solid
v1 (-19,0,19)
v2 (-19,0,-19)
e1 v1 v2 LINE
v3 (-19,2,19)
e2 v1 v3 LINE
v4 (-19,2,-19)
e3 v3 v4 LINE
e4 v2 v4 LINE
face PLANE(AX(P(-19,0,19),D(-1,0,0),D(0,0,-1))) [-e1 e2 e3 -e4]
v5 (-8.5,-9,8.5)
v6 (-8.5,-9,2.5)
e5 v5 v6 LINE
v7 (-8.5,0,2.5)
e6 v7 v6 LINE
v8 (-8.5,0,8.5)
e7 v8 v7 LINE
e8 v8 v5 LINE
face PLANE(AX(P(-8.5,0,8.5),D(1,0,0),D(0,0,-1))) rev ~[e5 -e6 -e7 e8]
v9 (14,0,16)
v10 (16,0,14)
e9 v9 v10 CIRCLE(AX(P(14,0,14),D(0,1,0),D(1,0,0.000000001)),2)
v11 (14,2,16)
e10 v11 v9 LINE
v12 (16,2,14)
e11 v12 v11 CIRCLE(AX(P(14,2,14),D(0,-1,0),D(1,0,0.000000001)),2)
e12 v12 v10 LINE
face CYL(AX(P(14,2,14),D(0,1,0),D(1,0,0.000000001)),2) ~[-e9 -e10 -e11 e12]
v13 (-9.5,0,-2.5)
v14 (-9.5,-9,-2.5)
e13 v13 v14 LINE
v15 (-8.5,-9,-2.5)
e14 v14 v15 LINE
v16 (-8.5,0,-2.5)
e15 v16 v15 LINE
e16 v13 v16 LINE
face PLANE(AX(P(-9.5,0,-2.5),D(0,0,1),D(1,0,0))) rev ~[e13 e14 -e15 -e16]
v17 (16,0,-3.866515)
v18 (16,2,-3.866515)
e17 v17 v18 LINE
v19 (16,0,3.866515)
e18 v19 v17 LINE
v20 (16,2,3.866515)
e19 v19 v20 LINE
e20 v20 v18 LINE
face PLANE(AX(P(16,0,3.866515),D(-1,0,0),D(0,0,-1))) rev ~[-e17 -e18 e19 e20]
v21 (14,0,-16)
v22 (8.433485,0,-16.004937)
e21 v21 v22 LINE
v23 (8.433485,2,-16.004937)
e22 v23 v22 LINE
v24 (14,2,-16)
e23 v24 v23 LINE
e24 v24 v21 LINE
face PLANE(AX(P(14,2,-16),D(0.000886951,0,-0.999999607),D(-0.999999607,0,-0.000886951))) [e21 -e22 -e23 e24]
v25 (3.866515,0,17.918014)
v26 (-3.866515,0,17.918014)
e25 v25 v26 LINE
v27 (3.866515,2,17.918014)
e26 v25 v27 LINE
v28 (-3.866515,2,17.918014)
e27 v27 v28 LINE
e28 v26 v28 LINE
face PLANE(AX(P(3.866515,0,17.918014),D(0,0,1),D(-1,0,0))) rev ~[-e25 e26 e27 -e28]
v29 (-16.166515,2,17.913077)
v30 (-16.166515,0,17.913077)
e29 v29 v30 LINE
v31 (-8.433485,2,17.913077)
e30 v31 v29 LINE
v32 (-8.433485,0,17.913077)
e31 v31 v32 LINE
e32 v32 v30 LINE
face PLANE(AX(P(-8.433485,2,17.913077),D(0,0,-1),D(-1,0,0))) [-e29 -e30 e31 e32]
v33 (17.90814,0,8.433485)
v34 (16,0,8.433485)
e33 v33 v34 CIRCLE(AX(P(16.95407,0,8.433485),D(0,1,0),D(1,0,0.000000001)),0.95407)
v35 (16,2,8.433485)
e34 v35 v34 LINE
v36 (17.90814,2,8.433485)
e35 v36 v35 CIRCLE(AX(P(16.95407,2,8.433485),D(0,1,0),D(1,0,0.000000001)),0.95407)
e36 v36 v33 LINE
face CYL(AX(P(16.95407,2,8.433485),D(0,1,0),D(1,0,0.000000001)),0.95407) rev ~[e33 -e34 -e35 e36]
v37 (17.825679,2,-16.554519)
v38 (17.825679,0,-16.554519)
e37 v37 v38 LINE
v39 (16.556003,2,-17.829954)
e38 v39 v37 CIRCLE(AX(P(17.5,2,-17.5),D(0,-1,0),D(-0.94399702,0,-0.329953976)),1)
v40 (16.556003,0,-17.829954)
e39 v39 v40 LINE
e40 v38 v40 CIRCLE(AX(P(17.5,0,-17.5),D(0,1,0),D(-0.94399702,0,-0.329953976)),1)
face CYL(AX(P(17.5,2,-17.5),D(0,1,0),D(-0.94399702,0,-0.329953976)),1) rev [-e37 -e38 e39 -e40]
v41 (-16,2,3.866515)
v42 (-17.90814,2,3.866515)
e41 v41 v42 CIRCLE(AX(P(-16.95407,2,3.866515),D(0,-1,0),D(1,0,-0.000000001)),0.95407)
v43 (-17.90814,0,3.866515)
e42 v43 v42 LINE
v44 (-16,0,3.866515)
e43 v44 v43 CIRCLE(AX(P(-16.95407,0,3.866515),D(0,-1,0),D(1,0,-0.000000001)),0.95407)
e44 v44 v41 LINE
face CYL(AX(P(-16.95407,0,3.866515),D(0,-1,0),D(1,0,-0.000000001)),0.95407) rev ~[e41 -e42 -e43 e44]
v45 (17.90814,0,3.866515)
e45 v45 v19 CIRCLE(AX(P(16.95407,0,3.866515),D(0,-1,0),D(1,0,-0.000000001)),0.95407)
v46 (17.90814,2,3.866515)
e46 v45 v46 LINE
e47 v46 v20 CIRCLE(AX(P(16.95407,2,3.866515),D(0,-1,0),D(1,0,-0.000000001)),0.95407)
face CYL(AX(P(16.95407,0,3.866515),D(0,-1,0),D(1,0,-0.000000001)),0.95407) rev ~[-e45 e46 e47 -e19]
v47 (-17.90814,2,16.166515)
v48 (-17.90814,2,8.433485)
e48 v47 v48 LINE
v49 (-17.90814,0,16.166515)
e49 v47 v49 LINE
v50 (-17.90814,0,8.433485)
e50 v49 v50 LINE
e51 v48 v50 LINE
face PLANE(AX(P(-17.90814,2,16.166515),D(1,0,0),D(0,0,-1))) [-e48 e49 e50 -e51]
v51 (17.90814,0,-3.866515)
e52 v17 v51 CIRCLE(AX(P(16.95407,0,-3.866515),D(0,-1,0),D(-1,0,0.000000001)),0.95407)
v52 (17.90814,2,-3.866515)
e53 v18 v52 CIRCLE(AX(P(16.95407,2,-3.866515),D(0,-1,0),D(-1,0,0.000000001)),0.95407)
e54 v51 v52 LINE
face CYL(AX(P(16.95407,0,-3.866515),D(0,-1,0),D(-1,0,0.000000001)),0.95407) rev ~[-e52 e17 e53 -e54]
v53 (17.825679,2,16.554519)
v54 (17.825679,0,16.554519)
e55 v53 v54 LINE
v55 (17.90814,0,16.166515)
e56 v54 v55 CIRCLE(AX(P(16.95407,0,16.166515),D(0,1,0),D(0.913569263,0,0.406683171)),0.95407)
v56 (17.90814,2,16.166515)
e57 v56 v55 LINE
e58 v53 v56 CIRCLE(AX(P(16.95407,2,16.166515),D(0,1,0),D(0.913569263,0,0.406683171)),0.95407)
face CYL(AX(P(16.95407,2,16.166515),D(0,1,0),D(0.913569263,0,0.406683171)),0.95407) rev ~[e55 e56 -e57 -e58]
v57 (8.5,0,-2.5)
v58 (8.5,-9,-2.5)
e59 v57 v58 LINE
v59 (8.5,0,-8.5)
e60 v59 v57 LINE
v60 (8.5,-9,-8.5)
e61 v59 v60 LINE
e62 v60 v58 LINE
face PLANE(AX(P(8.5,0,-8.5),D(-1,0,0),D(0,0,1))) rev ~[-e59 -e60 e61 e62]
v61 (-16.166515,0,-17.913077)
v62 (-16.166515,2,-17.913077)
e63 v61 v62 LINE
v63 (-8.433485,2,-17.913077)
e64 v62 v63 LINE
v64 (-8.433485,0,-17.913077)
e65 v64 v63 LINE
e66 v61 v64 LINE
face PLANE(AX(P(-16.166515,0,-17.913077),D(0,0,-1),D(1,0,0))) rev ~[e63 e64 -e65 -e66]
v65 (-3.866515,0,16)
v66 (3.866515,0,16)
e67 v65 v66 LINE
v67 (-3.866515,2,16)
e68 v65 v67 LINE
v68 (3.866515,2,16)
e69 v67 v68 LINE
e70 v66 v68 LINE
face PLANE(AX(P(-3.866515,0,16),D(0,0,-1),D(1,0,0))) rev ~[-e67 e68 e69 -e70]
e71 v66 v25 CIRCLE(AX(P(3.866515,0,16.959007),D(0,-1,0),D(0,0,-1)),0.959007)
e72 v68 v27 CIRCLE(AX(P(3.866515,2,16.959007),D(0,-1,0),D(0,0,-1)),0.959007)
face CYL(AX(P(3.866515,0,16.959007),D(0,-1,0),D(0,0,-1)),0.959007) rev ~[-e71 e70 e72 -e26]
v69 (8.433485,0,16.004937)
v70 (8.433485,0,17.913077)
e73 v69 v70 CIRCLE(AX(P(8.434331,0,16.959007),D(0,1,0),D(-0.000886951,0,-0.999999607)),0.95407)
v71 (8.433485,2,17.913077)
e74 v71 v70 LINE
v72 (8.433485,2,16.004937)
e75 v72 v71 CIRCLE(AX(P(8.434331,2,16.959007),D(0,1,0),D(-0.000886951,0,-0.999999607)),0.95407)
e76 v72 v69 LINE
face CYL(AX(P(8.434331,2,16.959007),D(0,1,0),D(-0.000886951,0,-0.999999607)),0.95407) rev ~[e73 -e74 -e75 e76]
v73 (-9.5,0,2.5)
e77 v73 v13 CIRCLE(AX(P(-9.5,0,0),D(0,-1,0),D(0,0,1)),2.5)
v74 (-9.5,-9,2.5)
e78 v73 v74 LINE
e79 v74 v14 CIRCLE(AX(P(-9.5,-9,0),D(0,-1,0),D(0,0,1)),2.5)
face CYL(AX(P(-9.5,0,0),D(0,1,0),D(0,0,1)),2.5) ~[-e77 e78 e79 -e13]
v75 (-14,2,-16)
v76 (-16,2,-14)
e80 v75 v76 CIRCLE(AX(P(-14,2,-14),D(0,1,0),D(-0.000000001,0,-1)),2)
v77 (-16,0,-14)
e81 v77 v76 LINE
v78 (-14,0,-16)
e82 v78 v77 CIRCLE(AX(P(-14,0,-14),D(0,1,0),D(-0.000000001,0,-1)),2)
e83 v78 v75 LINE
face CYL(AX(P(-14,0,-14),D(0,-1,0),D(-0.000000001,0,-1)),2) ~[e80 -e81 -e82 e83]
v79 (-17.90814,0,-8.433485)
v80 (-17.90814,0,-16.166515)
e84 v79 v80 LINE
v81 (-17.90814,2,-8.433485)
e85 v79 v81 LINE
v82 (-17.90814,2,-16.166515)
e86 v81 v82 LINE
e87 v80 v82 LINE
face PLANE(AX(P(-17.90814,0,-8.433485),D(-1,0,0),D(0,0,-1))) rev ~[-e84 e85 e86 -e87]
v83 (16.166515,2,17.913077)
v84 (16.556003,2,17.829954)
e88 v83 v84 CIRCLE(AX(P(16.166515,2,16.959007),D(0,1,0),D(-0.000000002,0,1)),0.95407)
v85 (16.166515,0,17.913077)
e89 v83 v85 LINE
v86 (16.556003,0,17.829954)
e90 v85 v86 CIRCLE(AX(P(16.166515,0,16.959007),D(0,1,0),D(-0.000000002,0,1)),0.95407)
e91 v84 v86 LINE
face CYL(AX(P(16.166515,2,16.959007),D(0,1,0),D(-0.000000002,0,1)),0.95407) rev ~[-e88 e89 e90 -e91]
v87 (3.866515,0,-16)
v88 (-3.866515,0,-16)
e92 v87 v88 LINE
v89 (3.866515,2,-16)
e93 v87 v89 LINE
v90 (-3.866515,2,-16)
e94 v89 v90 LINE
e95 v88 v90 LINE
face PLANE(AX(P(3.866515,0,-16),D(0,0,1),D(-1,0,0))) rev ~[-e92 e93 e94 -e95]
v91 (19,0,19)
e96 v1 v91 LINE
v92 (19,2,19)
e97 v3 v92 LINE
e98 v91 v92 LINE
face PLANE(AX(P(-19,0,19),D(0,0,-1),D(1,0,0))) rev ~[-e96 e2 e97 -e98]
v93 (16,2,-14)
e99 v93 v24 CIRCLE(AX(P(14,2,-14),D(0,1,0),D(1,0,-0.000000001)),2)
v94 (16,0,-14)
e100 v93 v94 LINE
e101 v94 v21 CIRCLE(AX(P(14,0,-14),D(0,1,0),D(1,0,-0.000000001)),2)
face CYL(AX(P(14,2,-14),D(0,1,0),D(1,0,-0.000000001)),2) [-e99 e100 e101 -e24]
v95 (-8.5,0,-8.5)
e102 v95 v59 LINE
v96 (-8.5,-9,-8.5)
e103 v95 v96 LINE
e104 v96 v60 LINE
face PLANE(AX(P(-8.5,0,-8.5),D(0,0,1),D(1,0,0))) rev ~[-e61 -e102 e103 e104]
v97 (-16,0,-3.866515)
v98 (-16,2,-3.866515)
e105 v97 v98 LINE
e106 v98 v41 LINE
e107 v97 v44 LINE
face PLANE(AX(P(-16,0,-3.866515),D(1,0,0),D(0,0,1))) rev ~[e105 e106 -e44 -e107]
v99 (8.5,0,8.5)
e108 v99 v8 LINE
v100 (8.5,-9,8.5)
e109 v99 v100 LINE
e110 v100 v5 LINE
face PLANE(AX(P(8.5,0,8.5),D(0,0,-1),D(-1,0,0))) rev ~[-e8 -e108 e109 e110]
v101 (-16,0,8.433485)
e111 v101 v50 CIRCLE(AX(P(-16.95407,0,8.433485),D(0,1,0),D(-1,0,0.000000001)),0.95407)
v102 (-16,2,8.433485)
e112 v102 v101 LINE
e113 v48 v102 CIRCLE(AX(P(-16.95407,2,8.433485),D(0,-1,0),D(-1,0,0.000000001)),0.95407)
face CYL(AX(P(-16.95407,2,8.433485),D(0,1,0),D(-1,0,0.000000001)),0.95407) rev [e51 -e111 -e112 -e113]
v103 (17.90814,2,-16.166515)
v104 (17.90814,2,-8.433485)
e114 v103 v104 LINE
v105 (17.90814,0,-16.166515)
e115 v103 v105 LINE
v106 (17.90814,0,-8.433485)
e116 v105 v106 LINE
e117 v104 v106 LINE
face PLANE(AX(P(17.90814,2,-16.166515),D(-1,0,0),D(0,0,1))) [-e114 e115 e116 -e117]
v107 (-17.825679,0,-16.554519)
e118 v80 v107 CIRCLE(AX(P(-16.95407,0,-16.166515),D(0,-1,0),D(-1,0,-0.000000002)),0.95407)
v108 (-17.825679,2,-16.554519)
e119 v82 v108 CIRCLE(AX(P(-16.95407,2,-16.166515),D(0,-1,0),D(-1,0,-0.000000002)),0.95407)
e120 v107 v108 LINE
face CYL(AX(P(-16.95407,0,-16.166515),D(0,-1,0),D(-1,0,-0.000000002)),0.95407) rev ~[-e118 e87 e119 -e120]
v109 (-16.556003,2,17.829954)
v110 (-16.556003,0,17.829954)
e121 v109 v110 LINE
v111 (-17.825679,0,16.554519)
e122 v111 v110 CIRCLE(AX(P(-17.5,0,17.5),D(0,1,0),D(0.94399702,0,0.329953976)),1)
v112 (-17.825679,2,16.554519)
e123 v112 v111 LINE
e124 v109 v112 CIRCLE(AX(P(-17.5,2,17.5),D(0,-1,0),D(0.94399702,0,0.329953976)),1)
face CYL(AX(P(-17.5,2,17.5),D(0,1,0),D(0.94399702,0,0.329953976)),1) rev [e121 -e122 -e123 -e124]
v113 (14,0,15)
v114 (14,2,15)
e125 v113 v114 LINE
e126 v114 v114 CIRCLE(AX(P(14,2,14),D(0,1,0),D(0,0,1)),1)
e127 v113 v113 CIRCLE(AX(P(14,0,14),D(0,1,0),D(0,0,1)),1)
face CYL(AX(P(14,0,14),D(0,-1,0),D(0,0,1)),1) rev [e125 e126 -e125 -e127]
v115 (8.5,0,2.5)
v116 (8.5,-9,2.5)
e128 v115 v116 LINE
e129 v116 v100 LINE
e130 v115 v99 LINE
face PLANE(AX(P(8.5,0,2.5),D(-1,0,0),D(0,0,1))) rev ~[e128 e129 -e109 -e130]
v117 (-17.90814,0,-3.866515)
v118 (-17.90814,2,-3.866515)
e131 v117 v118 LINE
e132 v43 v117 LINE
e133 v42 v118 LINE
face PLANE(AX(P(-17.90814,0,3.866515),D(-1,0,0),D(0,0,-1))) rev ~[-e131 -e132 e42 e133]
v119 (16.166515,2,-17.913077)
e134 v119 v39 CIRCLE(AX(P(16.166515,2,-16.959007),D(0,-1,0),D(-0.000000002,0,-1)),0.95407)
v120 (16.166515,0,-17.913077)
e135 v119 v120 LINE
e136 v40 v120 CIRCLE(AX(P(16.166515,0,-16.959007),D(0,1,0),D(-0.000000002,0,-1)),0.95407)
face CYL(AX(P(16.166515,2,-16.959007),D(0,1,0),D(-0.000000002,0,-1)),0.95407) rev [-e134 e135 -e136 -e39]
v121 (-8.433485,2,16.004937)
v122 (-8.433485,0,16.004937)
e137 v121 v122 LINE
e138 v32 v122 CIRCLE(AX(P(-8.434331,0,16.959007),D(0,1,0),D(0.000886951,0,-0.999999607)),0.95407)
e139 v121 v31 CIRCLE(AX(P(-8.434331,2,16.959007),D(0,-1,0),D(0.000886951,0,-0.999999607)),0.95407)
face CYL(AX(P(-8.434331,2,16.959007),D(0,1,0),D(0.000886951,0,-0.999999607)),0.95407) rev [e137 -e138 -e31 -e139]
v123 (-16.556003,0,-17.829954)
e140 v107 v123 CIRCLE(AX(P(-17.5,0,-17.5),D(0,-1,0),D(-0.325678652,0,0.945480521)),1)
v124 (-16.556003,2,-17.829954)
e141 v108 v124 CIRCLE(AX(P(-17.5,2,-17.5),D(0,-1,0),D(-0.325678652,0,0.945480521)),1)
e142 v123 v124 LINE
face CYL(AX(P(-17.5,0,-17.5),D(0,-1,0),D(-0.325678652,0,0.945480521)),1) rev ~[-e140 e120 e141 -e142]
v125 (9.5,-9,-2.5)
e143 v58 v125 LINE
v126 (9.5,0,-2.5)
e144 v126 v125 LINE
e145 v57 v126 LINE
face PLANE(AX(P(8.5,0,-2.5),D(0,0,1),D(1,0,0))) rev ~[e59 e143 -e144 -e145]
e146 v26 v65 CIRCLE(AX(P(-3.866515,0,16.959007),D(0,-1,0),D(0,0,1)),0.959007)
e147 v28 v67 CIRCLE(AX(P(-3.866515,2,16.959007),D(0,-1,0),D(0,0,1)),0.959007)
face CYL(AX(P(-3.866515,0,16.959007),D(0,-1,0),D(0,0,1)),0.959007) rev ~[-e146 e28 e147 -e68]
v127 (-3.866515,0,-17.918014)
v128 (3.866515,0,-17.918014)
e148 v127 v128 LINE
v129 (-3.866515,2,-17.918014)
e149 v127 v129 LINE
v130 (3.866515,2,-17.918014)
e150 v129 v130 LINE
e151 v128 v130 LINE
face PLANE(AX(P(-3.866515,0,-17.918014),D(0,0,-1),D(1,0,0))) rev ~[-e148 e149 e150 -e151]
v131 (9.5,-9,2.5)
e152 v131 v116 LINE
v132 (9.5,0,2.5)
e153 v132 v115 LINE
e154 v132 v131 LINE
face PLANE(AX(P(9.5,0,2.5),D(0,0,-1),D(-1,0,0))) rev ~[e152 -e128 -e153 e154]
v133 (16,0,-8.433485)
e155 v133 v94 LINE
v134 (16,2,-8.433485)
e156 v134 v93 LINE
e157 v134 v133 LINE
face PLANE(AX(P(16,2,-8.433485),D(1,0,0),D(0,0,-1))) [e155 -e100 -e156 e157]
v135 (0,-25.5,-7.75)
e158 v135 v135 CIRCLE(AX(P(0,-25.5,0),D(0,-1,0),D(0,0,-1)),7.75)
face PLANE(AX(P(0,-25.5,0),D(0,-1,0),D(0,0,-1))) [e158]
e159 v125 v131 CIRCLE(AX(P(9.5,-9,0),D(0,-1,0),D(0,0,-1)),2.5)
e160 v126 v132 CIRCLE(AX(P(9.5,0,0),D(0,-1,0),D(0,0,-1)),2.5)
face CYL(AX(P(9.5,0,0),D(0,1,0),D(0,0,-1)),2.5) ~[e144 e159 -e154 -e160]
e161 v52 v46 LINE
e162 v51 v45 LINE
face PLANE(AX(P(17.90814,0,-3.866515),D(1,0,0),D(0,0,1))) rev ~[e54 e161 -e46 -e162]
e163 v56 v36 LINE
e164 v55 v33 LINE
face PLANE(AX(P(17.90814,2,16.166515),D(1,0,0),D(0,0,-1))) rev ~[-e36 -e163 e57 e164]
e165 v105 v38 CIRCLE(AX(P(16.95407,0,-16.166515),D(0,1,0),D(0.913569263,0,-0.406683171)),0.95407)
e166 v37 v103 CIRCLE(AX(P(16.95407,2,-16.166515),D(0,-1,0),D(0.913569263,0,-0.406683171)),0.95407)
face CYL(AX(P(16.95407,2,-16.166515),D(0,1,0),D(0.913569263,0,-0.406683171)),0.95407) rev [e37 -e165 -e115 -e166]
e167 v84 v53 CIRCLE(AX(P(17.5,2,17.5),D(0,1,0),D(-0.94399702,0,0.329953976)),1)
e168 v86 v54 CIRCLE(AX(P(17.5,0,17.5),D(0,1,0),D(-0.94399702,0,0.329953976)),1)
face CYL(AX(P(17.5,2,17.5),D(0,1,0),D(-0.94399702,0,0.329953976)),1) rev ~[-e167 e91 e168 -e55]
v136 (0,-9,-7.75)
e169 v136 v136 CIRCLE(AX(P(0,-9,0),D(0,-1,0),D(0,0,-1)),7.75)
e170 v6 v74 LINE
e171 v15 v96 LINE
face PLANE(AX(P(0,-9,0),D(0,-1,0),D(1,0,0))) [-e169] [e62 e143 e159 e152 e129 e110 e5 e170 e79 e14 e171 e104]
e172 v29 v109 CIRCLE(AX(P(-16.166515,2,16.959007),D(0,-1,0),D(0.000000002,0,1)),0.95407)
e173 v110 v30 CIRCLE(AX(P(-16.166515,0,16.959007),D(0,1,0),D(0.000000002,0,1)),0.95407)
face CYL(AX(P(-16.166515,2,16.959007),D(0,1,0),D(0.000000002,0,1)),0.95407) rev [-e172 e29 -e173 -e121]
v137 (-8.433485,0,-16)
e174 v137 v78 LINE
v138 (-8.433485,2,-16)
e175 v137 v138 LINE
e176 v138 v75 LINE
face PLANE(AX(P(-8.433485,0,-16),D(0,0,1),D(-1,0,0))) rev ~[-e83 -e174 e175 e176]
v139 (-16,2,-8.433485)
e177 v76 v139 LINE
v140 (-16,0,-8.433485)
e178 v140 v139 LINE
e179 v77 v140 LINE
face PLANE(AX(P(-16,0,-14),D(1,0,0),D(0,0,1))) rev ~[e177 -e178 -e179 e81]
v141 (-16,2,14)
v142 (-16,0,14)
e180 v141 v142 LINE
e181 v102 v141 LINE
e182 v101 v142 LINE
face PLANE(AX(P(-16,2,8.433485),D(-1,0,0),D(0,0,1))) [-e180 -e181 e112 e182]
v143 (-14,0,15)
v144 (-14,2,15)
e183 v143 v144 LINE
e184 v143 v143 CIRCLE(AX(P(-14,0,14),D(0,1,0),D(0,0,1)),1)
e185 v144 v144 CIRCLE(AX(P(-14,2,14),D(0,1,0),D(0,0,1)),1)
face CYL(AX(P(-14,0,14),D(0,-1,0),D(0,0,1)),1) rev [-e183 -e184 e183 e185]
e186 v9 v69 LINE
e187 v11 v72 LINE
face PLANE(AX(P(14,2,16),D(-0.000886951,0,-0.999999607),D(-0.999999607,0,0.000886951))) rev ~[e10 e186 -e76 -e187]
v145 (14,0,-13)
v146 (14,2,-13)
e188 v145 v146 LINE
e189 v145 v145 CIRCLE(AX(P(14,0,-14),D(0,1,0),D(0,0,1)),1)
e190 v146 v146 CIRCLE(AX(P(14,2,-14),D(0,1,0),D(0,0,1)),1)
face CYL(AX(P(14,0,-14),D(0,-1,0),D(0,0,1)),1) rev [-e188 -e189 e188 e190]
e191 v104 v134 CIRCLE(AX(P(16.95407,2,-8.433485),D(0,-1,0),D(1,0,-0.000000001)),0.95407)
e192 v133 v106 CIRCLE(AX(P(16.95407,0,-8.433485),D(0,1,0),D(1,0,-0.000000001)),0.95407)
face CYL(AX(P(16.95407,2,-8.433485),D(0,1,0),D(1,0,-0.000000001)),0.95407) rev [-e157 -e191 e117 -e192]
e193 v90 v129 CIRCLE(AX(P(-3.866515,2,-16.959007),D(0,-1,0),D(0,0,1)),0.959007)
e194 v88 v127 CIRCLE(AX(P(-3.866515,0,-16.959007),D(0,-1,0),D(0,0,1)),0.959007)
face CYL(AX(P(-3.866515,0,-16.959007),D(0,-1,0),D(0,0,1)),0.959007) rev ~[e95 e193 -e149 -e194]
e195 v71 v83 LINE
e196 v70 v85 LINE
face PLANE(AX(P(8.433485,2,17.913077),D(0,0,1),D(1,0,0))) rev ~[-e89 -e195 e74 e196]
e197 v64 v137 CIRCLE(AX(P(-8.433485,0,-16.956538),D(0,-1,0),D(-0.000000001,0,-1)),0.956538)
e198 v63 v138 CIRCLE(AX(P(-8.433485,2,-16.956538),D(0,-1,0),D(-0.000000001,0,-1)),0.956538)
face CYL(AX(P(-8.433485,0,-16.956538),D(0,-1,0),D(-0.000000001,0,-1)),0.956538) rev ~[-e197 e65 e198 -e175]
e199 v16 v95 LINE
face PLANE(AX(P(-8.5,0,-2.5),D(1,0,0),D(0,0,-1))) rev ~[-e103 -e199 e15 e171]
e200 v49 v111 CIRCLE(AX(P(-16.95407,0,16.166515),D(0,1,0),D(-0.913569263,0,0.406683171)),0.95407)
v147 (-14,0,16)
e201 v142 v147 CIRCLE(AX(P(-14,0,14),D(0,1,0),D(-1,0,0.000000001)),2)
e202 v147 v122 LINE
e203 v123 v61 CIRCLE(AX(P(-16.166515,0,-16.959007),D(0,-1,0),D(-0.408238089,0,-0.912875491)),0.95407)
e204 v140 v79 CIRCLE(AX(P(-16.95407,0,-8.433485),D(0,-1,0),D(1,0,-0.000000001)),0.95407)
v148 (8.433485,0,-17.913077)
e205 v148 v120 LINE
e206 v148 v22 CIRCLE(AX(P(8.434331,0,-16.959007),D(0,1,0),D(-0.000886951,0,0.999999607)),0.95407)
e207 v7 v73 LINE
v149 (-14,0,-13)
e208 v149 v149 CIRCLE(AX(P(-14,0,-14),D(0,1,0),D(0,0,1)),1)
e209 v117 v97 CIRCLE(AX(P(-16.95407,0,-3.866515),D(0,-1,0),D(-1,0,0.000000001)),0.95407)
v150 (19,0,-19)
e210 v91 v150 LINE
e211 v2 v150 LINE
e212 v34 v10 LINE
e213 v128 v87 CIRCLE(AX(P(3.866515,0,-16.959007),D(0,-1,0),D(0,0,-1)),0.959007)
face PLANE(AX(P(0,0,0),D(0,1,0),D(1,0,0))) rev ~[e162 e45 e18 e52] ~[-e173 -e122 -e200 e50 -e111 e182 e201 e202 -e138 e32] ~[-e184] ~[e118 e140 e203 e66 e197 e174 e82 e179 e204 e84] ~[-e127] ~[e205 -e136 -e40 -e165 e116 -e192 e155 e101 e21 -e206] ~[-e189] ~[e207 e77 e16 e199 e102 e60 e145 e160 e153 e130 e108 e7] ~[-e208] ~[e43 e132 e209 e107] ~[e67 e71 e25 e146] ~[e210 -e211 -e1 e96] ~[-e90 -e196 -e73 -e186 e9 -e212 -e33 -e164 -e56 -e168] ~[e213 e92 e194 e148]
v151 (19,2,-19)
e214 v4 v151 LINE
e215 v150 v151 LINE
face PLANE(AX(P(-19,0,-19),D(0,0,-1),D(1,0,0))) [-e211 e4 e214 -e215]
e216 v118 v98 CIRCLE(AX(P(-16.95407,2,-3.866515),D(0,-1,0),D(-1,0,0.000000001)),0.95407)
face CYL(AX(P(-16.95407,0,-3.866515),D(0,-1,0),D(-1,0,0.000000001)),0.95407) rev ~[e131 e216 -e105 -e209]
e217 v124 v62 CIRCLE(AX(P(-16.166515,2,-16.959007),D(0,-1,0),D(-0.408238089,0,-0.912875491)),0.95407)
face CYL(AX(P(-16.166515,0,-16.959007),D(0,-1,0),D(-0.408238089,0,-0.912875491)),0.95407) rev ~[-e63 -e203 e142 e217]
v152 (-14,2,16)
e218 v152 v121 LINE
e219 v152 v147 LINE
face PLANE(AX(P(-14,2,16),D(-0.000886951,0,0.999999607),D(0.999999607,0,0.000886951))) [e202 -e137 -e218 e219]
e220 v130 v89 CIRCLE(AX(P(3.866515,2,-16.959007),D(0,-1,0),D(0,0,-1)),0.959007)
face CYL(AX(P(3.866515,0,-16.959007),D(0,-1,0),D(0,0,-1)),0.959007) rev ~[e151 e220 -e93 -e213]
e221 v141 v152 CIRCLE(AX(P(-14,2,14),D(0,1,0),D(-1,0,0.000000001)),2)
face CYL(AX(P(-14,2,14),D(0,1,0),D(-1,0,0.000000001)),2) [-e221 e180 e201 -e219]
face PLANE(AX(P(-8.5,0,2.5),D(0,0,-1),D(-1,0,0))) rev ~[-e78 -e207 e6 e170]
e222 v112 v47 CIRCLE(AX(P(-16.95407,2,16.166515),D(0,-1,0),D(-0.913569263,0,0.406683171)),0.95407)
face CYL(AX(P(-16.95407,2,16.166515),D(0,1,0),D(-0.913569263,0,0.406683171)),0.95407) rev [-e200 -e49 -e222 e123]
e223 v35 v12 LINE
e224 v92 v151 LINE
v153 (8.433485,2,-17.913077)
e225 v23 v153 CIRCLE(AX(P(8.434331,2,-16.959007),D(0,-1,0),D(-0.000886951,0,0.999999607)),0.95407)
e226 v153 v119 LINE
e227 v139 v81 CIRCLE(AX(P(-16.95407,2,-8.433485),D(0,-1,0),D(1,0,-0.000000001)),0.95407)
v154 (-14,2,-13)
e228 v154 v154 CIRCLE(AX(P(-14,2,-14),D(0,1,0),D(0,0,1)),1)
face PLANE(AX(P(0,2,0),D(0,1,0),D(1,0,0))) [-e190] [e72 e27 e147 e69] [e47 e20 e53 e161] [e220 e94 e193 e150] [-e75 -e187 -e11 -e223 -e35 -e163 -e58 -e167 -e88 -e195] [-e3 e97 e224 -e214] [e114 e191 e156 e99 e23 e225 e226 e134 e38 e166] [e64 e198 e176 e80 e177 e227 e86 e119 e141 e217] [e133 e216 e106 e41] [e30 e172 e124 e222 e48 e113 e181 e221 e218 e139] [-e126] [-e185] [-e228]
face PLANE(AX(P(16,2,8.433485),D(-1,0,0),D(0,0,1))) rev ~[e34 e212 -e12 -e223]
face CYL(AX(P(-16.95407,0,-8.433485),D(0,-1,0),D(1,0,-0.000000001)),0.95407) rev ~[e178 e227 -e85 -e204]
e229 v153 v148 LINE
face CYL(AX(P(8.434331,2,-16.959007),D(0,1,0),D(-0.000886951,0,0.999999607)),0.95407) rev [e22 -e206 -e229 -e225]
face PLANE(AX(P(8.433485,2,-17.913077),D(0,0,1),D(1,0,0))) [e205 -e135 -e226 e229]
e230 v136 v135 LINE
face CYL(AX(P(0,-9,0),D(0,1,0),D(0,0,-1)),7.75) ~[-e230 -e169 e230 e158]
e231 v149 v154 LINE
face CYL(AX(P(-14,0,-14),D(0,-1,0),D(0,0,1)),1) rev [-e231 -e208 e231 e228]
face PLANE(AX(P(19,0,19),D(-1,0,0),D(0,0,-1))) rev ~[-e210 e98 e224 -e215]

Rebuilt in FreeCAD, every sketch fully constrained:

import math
import FreeCAD as App
import Part
import Sketcher


def add_polygon(sketch, points):
    """Adds a closed chain of lines whose ends are joined by coincident constraints."""
    first, n = sketch.GeometryCount, len(points)
    for a, b in zip(points, points[1:] + points[:1]):
        sketch.addGeometry(Part.LineSegment(App.Vector(*a, 0), App.Vector(*b, 0)), False)
    for i in range(n):
        sketch.addConstraint(Sketcher.Constraint("Coincident", first + i, 2, first + (i + 1) % n, 1))

doc = App.newDocument("Part")
body = doc.addObject("PartDesign::Body", "Body")

# Sketch on XZ plane
sketch1 = body.newObject("Sketcher::SketchObject", "Sketch")
sketch1.AttachmentSupport = (doc.getObject("XZ_Plane"), [""])
sketch1.MapMode = "FlatFace"
add_polygon(sketch1, [(-19, -19), (-19, 19), (19, 19), (19, -19)])  # lines 0-3
sketch1.addGeometry(Part.Circle(App.Vector(-14, 14, 0), App.Vector(0, 0, 1), 1), False)  # 4
sketch1.addGeometry(Part.LineSegment(App.Vector(-17.91, 3.87, 0), App.Vector(-17.91, -3.87, 0)), False)  # 5
sketch1.addGeometry(Part.ArcOfCircle(Part.Circle(App.Vector(-16.95, -3.87, 0), App.Vector(0, 0, 1), 0.95), math.radians(180), math.radians(360)), False)  # 6
sketch1.addGeometry(Part.LineSegment(App.Vector(-16, -3.87, 0), App.Vector(-16, 3.87, 0)), False)  # 7
sketch1.addGeometry(Part.ArcOfCircle(Part.Circle(App.Vector(-16.95, 3.87, 0), App.Vector(0, 0, 1), 0.95), math.radians(0), math.radians(180)), False)  # 8
sketch1.addGeometry(Part.LineSegment(App.Vector(3.87, 17.92, 0), App.Vector(-3.87, 17.92, 0)), False)  # 9
sketch1.addGeometry(Part.ArcOfCircle(Part.Circle(App.Vector(-3.87, 16.96, 0), App.Vector(0, 0, 1), 0.96), math.radians(90), math.radians(270)), False)  # 10
sketch1.addGeometry(Part.LineSegment(App.Vector(-3.87, 16, 0), App.Vector(3.87, 16, 0)), False)  # 11
sketch1.addGeometry(Part.ArcOfCircle(Part.Circle(App.Vector(3.87, 16.96, 0), App.Vector(0, 0, 1), 0.96), math.radians(-90), math.radians(90)), False)  # 12
sketch1.addGeometry(Part.Circle(App.Vector(14, 14, 0), App.Vector(0, 0, 1), 1), False)  # 13
sketch1.addGeometry(Part.LineSegment(App.Vector(17.91, -3.87, 0), App.Vector(17.91, 3.87, 0)), False)  # 14
sketch1.addGeometry(Part.ArcOfCircle(Part.Circle(App.Vector(16.95, 3.87, 0), App.Vector(0, 0, 1), 0.95), math.radians(0), math.radians(180)), False)  # 15
sketch1.addGeometry(Part.LineSegment(App.Vector(16, 3.87, 0), App.Vector(16, -3.87, 0)), False)  # 16
sketch1.addGeometry(Part.ArcOfCircle(Part.Circle(App.Vector(16.95, -3.87, 0), App.Vector(0, 0, 1), 0.95), math.radians(180), math.radians(360)), False)  # 17
sketch1.addGeometry(Part.LineSegment(App.Vector(-16.17, -17.91, 0), App.Vector(-8.43, -17.91, 0)), False)  # 18
sketch1.addGeometry(Part.ArcOfCircle(Part.Circle(App.Vector(-8.43, -16.96, 0), App.Vector(0, 0, 1), 0.96), math.radians(-90), math.radians(90)), False)  # 19
sketch1.addGeometry(Part.LineSegment(App.Vector(-8.43, -16, 0), App.Vector(-14, -16, 0)), False)  # 20
sketch1.addGeometry(Part.ArcOfCircle(Part.Circle(App.Vector(-14, -14, 0), App.Vector(0, 0, 1), 2), math.radians(-180), math.radians(-90)), False)  # 21
sketch1.addGeometry(Part.LineSegment(App.Vector(-16, -14, 0), App.Vector(-16, -8.43, 0)), False)  # 22
sketch1.addGeometry(Part.ArcOfCircle(Part.Circle(App.Vector(-16.95, -8.43, 0), App.Vector(0, 0, 1), 0.95), math.radians(0), math.radians(180)), False)  # 23
sketch1.addGeometry(Part.LineSegment(App.Vector(-17.91, -8.43, 0), App.Vector(-17.91, -16.17, 0)), False)  # 24
sketch1.addGeometry(Part.ArcOfCircle(Part.Circle(App.Vector(-16.95, -16.17, 0), App.Vector(0, 0, 1), 0.95), math.radians(-180), math.radians(-156)), False)  # 25
sketch1.addGeometry(Part.ArcOfCircle(Part.Circle(App.Vector(-17.5, -17.5, 0), App.Vector(0, 0, 1), 1), math.radians(109), math.radians(341)), False)  # 26
sketch1.addGeometry(Part.ArcOfCircle(Part.Circle(App.Vector(-16.17, -16.96, 0), App.Vector(0, 0, 1), 0.95), math.radians(-114), math.radians(-90)), False)  # 27
sketch1.addGeometry(Part.Circle(App.Vector(-14, -14, 0), App.Vector(0, 0, 1), 1), False)  # 28
sketch1.addGeometry(Part.LineSegment(App.Vector(-3.87, -17.92, 0), App.Vector(3.87, -17.92, 0)), False)  # 29
sketch1.addGeometry(Part.ArcOfCircle(Part.Circle(App.Vector(3.87, -16.96, 0), App.Vector(0, 0, 1), 0.96), math.radians(-90), math.radians(90)), False)  # 30
sketch1.addGeometry(Part.LineSegment(App.Vector(3.87, -16, 0), App.Vector(-3.87, -16, 0)), False)  # 31
sketch1.addGeometry(Part.ArcOfCircle(Part.Circle(App.Vector(-3.87, -16.96, 0), App.Vector(0, 0, 1), 0.96), math.radians(90), math.radians(270)), False)  # 32
sketch1.addGeometry(Part.Circle(App.Vector(14, -14, 0), App.Vector(0, 0, 1), 1), False)  # 33
sketch1.addConstraint(Sketcher.Constraint("Tangent", 5, 2, 6, 1))
sketch1.addConstraint(Sketcher.Constraint("Tangent", 6, 2, 7, 1))
sketch1.addConstraint(Sketcher.Constraint("Tangent", 7, 2, 8, 1))
sketch1.addConstraint(Sketcher.Constraint("Tangent", 8, 2, 5, 1))
sketch1.addConstraint(Sketcher.Constraint("Tangent", 9, 2, 10, 1))
sketch1.addConstraint(Sketcher.Constraint("Tangent", 10, 2, 11, 1))
sketch1.addConstraint(Sketcher.Constraint("Tangent", 11, 2, 12, 1))
sketch1.addConstraint(Sketcher.Constraint("Tangent", 12, 2, 9, 1))
sketch1.addConstraint(Sketcher.Constraint("Tangent", 14, 2, 15, 1))
sketch1.addConstraint(Sketcher.Constraint("Tangent", 15, 2, 16, 1))
sketch1.addConstraint(Sketcher.Constraint("Tangent", 16, 2, 17, 1))
sketch1.addConstraint(Sketcher.Constraint("Tangent", 17, 2, 14, 1))
sketch1.addConstraint(Sketcher.Constraint("Tangent", 18, 2, 19, 1))
sketch1.addConstraint(Sketcher.Constraint("Tangent", 19, 2, 20, 1))
sketch1.addConstraint(Sketcher.Constraint("Tangent", 20, 2, 21, 2))
sketch1.addConstraint(Sketcher.Constraint("Tangent", 21, 1, 22, 1))
sketch1.addConstraint(Sketcher.Constraint("Tangent", 22, 2, 23, 1))
sketch1.addConstraint(Sketcher.Constraint("Tangent", 23, 2, 24, 1))
sketch1.addConstraint(Sketcher.Constraint("Tangent", 24, 2, 25, 1))
sketch1.addConstraint(Sketcher.Constraint("Coincident", 25, 2, 26, 1))
sketch1.addConstraint(Sketcher.Constraint("Coincident", 26, 2, 27, 1))
sketch1.addConstraint(Sketcher.Constraint("Tangent", 27, 2, 18, 1))
sketch1.addConstraint(Sketcher.Constraint("Tangent", 29, 2, 30, 1))
sketch1.addConstraint(Sketcher.Constraint("Tangent", 30, 2, 31, 1))
sketch1.addConstraint(Sketcher.Constraint("Tangent", 31, 2, 32, 1))
sketch1.addConstraint(Sketcher.Constraint("Tangent", 32, 2, 29, 1))
sketch1.addConstraint(Sketcher.Constraint("Vertical", 0))
sketch1.addConstraint(Sketcher.Constraint("Horizontal", 1))
sketch1.addConstraint(Sketcher.Constraint("Vertical", 2))
sketch1.addConstraint(Sketcher.Constraint("Horizontal", 3))
sketch1.addConstraint(Sketcher.Constraint("Vertical", 5))
sketch1.addConstraint(Sketcher.Constraint("Vertical", 7))
sketch1.addConstraint(Sketcher.Constraint("Horizontal", 9))
sketch1.addConstraint(Sketcher.Constraint("Horizontal", 11))
sketch1.addConstraint(Sketcher.Constraint("Vertical", 14))
sketch1.addConstraint(Sketcher.Constraint("Vertical", 16))
sketch1.addConstraint(Sketcher.Constraint("Horizontal", 18))
sketch1.addConstraint(Sketcher.Constraint("Horizontal", 20))
sketch1.addConstraint(Sketcher.Constraint("Vertical", 22))
sketch1.addConstraint(Sketcher.Constraint("Vertical", 24))
sketch1.addConstraint(Sketcher.Constraint("Horizontal", 29))
sketch1.addConstraint(Sketcher.Constraint("Horizontal", 31))
sketch1.addConstraint(Sketcher.Constraint("Coincident", 28, 3, 21, 3))
sketch1.addConstraint(Sketcher.Constraint("Equal", 4, 13))
sketch1.addConstraint(Sketcher.Constraint("Equal", 8, 15))
sketch1.addConstraint(Sketcher.Constraint("Equal", 17, 23))
sketch1.addConstraint(Sketcher.Constraint("Equal", 23, 25))
sketch1.addConstraint(Sketcher.Constraint("Equal", 13, 26))
sketch1.addConstraint(Sketcher.Constraint("Equal", 25, 27))
sketch1.addConstraint(Sketcher.Constraint("Equal", 26, 28))
sketch1.addConstraint(Sketcher.Constraint("Equal", 12, 30))
sketch1.addConstraint(Sketcher.Constraint("Equal", 28, 33))
sketch1.addConstraint(Sketcher.Constraint("Symmetric", 6, 3, 15, 3, -1, 1))
sketch1.addConstraint(Sketcher.Constraint("Symmetric", 13, 3, 21, 3, -1, 1))
sketch1.addConstraint(Sketcher.Constraint("Symmetric", 10, 3, 30, 3, -1, 1))
sketch1.addConstraint(Sketcher.Constraint("Symmetric", 4, 3, 33, 3, -1, 1))
sketch1.addConstraint(Sketcher.Constraint("Symmetric", 0, 2, 2, 2, -1, 1))
sketch1.addConstraint(Sketcher.Constraint("Symmetric", 4, 3, 13, 3, -2))
sketch1.addConstraint(Sketcher.Constraint("Horizontal", 8, 3, 15, 3))
sketch1.addConstraint(Sketcher.Constraint("Horizontal", 6, 3, 17, 3))
sketch1.addConstraint(Sketcher.Constraint("Horizontal", 27, 3, 30, 3))
sketch1.addConstraint(Sketcher.Constraint("Horizontal", 20, 2, 30, 2))
sketch1.addConstraint(Sketcher.Constraint("Vertical", 8, 3, 23, 3))
sketch1.addConstraint(Sketcher.Constraint("Vertical", 12, 3, 30, 3))
sketch1.addConstraint(Sketcher.Constraint("Vertical", 10, 3, 32, 3))
sketch1.addConstraint(Sketcher.Constraint("Equal", 11, 18))
sketch1.addConstraint(Sketcher.Constraint("Equal", 3, 0))
sketch1.addConstraint(Sketcher.Constraint("Equal", 31, 5))
sketch1.addConstraint(Sketcher.Constraint("Equal", 20, 22))
sketch1.addConstraint(Sketcher.Constraint("Equal", 16, 24))
sketch1.addConstraint(Sketcher.Constraint("Diameter", 4, 2.0))
sketch1.addConstraint(Sketcher.Constraint("Radius", 21, 2.0))
sketch1.addConstraint(Sketcher.Constraint("DistanceX", 1, 1, 1, 2, 38.0))
sketch1.addConstraint(Sketcher.Constraint("DistanceX", 4, 3, -1, 1, 14.0))
sketch1.addConstraint(Sketcher.Constraint("DistanceY", -1, 1, 4, 3, 14.0))
sketch1.addConstraint(Sketcher.Constraint("DistanceX", 26, 3, -1, 1, 17.5))
sketch1.addConstraint(Sketcher.Constraint("DistanceY", 26, 3, -1, 1, 17.5))
sketch1.addConstraint(Sketcher.Constraint("DistanceY", 23, 3, 8, 3, 12.3))
sketch1.addConstraint(Sketcher.Constraint("Radius", 6, 0.95407))
sketch1.addConstraint(Sketcher.Constraint("Radius", 19, 0.956538))
sketch1.addConstraint(Sketcher.Constraint("DistanceX", 9, 2, 9, 1, 7.733031))
pad1 = body.newObject("PartDesign::Pad", "Pad")
pad1.Profile = sketch1
pad1.Length = 2
pad1.Reversed = True

# Sketch on XZ plane
sketch2 = body.newObject("Sketcher::SketchObject", "Sketch001")
sketch2.AttachmentSupport = (doc.getObject("XZ_Plane"), [""])
sketch2.MapMode = "FlatFace"
sketch2.AttachmentOffset = App.Placement(App.Vector(0, 0, -2), App.Rotation())
sketch2.addGeometry(Part.LineSegment(App.Vector(-17.91, 8.43, 0), App.Vector(-17.91, 16.17, 0)), False)
sketch2.addGeometry(Part.ArcOfCircle(Part.Circle(App.Vector(-16.95, 16.17, 0), App.Vector(0, 0, 1), 0.95), math.radians(156), math.radians(180)), False)
sketch2.addGeometry(Part.ArcOfCircle(Part.Circle(App.Vector(-17.5, 17.5, 0), App.Vector(0, 0, 1), 1), math.radians(19), math.radians(251)), False)
sketch2.addGeometry(Part.ArcOfCircle(Part.Circle(App.Vector(-16.17, 16.96, 0), App.Vector(0, 0, 1), 0.95), math.radians(90), math.radians(114)), False)
sketch2.addGeometry(Part.LineSegment(App.Vector(-16.17, 17.91, 0), App.Vector(-8.43, 17.91, 0)), False)
sketch2.addGeometry(Part.ArcOfCircle(Part.Circle(App.Vector(-8.43, 16.96, 0), App.Vector(0, 0, 1), 0.95), math.radians(-90), math.radians(90)), False)
sketch2.addGeometry(Part.LineSegment(App.Vector(-8.43, 16, 0), App.Vector(-14, 16, 0)), False)
sketch2.addGeometry(Part.ArcOfCircle(Part.Circle(App.Vector(-14, 14, 0), App.Vector(0, 0, 1), 2), math.radians(90), math.radians(180)), False)
sketch2.addGeometry(Part.LineSegment(App.Vector(-16, 14, 0), App.Vector(-16, 8.43, 0)), False)
sketch2.addGeometry(Part.ArcOfCircle(Part.Circle(App.Vector(-16.95, 8.43, 0), App.Vector(0, 0, 1), 0.95), math.radians(180), math.radians(360)), False)
sketch2.addGeometry(Part.LineSegment(App.Vector(17.91, 16.17, 0), App.Vector(17.91, 8.43, 0)), False)
sketch2.addGeometry(Part.ArcOfCircle(Part.Circle(App.Vector(16.95, 8.43, 0), App.Vector(0, 0, 1), 0.95), math.radians(180), math.radians(360)), False)
sketch2.addGeometry(Part.LineSegment(App.Vector(16, 8.43, 0), App.Vector(16, 14, 0)), False)
sketch2.addGeometry(Part.ArcOfCircle(Part.Circle(App.Vector(14, 14, 0), App.Vector(0, 0, 1), 2), math.radians(0), math.radians(90)), False)
sketch2.addGeometry(Part.LineSegment(App.Vector(14, 16, 0), App.Vector(8.43, 16, 0)), False)
sketch2.addGeometry(Part.ArcOfCircle(Part.Circle(App.Vector(8.43, 16.96, 0), App.Vector(0, 0, 1), 0.95), math.radians(90), math.radians(270)), False)
sketch2.addGeometry(Part.LineSegment(App.Vector(8.43, 17.91, 0), App.Vector(16.17, 17.91, 0)), False)
sketch2.addGeometry(Part.ArcOfCircle(Part.Circle(App.Vector(16.17, 16.96, 0), App.Vector(0, 0, 1), 0.95), math.radians(66), math.radians(90)), False)
sketch2.addGeometry(Part.ArcOfCircle(Part.Circle(App.Vector(17.5, 17.5, 0), App.Vector(0, 0, 1), 1), math.radians(-71), math.radians(161)), False)
sketch2.addGeometry(Part.ArcOfCircle(Part.Circle(App.Vector(16.95, 16.17, 0), App.Vector(0, 0, 1), 0.95), math.radians(0), math.radians(24)), False)
sketch2.addGeometry(Part.LineSegment(App.Vector(16.17, -17.91, 0), App.Vector(8.43, -17.91, 0)), False)
sketch2.addGeometry(Part.ArcOfCircle(Part.Circle(App.Vector(8.43, -16.96, 0), App.Vector(0, 0, 1), 0.95), math.radians(90), math.radians(270)), False)
sketch2.addGeometry(Part.LineSegment(App.Vector(8.43, -16, 0), App.Vector(14, -16, 0)), False)
sketch2.addGeometry(Part.ArcOfCircle(Part.Circle(App.Vector(14, -14, 0), App.Vector(0, 0, 1), 2), math.radians(-90), math.radians(0)), False)
sketch2.addGeometry(Part.LineSegment(App.Vector(16, -14, 0), App.Vector(16, -8.43, 0)), False)
sketch2.addGeometry(Part.ArcOfCircle(Part.Circle(App.Vector(16.95, -8.43, 0), App.Vector(0, 0, 1), 0.95), math.radians(0), math.radians(180)), False)
sketch2.addGeometry(Part.LineSegment(App.Vector(17.91, -8.43, 0), App.Vector(17.91, -16.17, 0)), False)
sketch2.addGeometry(Part.ArcOfCircle(Part.Circle(App.Vector(16.95, -16.17, 0), App.Vector(0, 0, 1), 0.95), math.radians(-24), math.radians(0)), False)
sketch2.addGeometry(Part.ArcOfCircle(Part.Circle(App.Vector(17.5, -17.5, 0), App.Vector(0, 0, 1), 1), math.radians(-161), math.radians(71)), False)
sketch2.addGeometry(Part.ArcOfCircle(Part.Circle(App.Vector(16.17, -16.96, 0), App.Vector(0, 0, 1), 0.95), math.radians(-90), math.radians(-66)), False)
sketch2.addGeometry(Part.LineSegment(App.Vector(-8.43, -17.91, 0), App.Vector(-16.17, -17.91, 0)), False)
sketch2.addGeometry(Part.ArcOfCircle(Part.Circle(App.Vector(-16.17, -16.96, 0), App.Vector(0, 0, 1), 0.95), math.radians(-114), math.radians(-90)), False)
sketch2.addGeometry(Part.ArcOfCircle(Part.Circle(App.Vector(-17.5, -17.5, 0), App.Vector(0, 0, 1), 1), math.radians(109), math.radians(341)), False)
sketch2.addGeometry(Part.ArcOfCircle(Part.Circle(App.Vector(-16.95, -16.17, 0), App.Vector(0, 0, 1), 0.95), math.radians(-180), math.radians(-156)), False)
sketch2.addGeometry(Part.LineSegment(App.Vector(-17.91, -16.17, 0), App.Vector(-17.91, -8.43, 0)), False)
sketch2.addGeometry(Part.ArcOfCircle(Part.Circle(App.Vector(-16.95, -8.43, 0), App.Vector(0, 0, 1), 0.95), math.radians(0), math.radians(180)), False)
sketch2.addGeometry(Part.LineSegment(App.Vector(-16, -8.43, 0), App.Vector(-16, -14, 0)), False)
sketch2.addGeometry(Part.ArcOfCircle(Part.Circle(App.Vector(-14, -14, 0), App.Vector(0, 0, 1), 2), math.radians(-180), math.radians(-90)), False)
sketch2.addGeometry(Part.LineSegment(App.Vector(-14, -16, 0), App.Vector(-8.43, -16, 0)), False)
sketch2.addGeometry(Part.ArcOfCircle(Part.Circle(App.Vector(-8.43, -16.96, 0), App.Vector(0, 0, 1), 0.95), math.radians(-90), math.radians(90)), False)
sketch2.addConstraint(Sketcher.Constraint("Tangent", 0, 2, 1, 2))
sketch2.addConstraint(Sketcher.Constraint("Coincident", 1, 1, 2, 2))
sketch2.addConstraint(Sketcher.Constraint("Coincident", 2, 1, 3, 2))
sketch2.addConstraint(Sketcher.Constraint("Tangent", 3, 1, 4, 1))
sketch2.addConstraint(Sketcher.Constraint("Coincident", 4, 2, 5, 2))
sketch2.addConstraint(Sketcher.Constraint("Tangent", 5, 1, 6, 1))
sketch2.addConstraint(Sketcher.Constraint("Coincident", 6, 2, 7, 1))
sketch2.addConstraint(Sketcher.Constraint("Tangent", 7, 2, 8, 1))
sketch2.addConstraint(Sketcher.Constraint("Tangent", 8, 2, 9, 2))
sketch2.addConstraint(Sketcher.Constraint("Tangent", 9, 1, 0, 1))
sketch2.addConstraint(Sketcher.Constraint("Tangent", 10, 2, 11, 2))
sketch2.addConstraint(Sketcher.Constraint("Tangent", 11, 1, 12, 1))
sketch2.addConstraint(Sketcher.Constraint("Tangent", 12, 2, 13, 1))
sketch2.addConstraint(Sketcher.Constraint("Coincident", 13, 2, 14, 1))
sketch2.addConstraint(Sketcher.Constraint("Tangent", 14, 2, 15, 2))
sketch2.addConstraint(Sketcher.Constraint("Coincident", 15, 1, 16, 1))
sketch2.addConstraint(Sketcher.Constraint("Tangent", 16, 2, 17, 2))
sketch2.addConstraint(Sketcher.Constraint("Coincident", 17, 1, 18, 2))
sketch2.addConstraint(Sketcher.Constraint("Coincident", 18, 1, 19, 2))
sketch2.addConstraint(Sketcher.Constraint("Tangent", 19, 1, 10, 1))
sketch2.addConstraint(Sketcher.Constraint("Coincident", 20, 2, 21, 2))
sketch2.addConstraint(Sketcher.Constraint("Tangent", 21, 1, 22, 1))
sketch2.addConstraint(Sketcher.Constraint("Coincident", 22, 2, 23, 1))
sketch2.addConstraint(Sketcher.Constraint("Tangent", 23, 2, 24, 1))
sketch2.addConstraint(Sketcher.Constraint("Tangent", 24, 2, 25, 2))
sketch2.addConstraint(Sketcher.Constraint("Tangent", 25, 1, 26, 1))
sketch2.addConstraint(Sketcher.Constraint("Tangent", 26, 2, 27, 2))
sketch2.addConstraint(Sketcher.Constraint("Coincident", 27, 1, 28, 2))
sketch2.addConstraint(Sketcher.Constraint("Coincident", 28, 1, 29, 2))
sketch2.addConstraint(Sketcher.Constraint("Tangent", 29, 1, 20, 1))
sketch2.addConstraint(Sketcher.Constraint("Tangent", 30, 2, 31, 2))
sketch2.addConstraint(Sketcher.Constraint("Coincident", 31, 1, 32, 2))
sketch2.addConstraint(Sketcher.Constraint("Coincident", 32, 1, 33, 2))
sketch2.addConstraint(Sketcher.Constraint("Tangent", 33, 1, 34, 1))
sketch2.addConstraint(Sketcher.Constraint("Tangent", 34, 2, 35, 2))
sketch2.addConstraint(Sketcher.Constraint("Tangent", 35, 1, 36, 1))
sketch2.addConstraint(Sketcher.Constraint("Tangent", 36, 2, 37, 1))
sketch2.addConstraint(Sketcher.Constraint("Coincident", 37, 2, 38, 1))
sketch2.addConstraint(Sketcher.Constraint("Tangent", 38, 2, 39, 2))
sketch2.addConstraint(Sketcher.Constraint("Coincident", 39, 1, 30, 1))
sketch2.addConstraint(Sketcher.Constraint("Vertical", 0))
sketch2.addConstraint(Sketcher.Constraint("Horizontal", 4))
sketch2.addConstraint(Sketcher.Constraint("Vertical", 8))
sketch2.addConstraint(Sketcher.Constraint("Vertical", 10))
sketch2.addConstraint(Sketcher.Constraint("Vertical", 12))
sketch2.addConstraint(Sketcher.Constraint("Horizontal", 16))
sketch2.addConstraint(Sketcher.Constraint("Horizontal", 20))
sketch2.addConstraint(Sketcher.Constraint("Vertical", 24))
sketch2.addConstraint(Sketcher.Constraint("Vertical", 26))
sketch2.addConstraint(Sketcher.Constraint("Horizontal", 30))
sketch2.addConstraint(Sketcher.Constraint("Vertical", 34))
sketch2.addConstraint(Sketcher.Constraint("Vertical", 36))
sketch2.addConstraint(Sketcher.Constraint("Equal", 1, 3))
sketch2.addConstraint(Sketcher.Constraint("Equal", 3, 5))
sketch2.addConstraint(Sketcher.Constraint("Equal", 5, 9))
sketch2.addConstraint(Sketcher.Constraint("Equal", 9, 11))
sketch2.addConstraint(Sketcher.Constraint("Equal", 7, 13))
sketch2.addConstraint(Sketcher.Constraint("Equal", 11, 15))
sketch2.addConstraint(Sketcher.Constraint("Equal", 15, 17))
sketch2.addConstraint(Sketcher.Constraint("Equal", 2, 18))
sketch2.addConstraint(Sketcher.Constraint("Equal", 17, 19))
sketch2.addConstraint(Sketcher.Constraint("Equal", 19, 21))
sketch2.addConstraint(Sketcher.Constraint("Equal", 13, 23))
sketch2.addConstraint(Sketcher.Constraint("Equal", 21, 25))
sketch2.addConstraint(Sketcher.Constraint("Equal", 25, 27))
sketch2.addConstraint(Sketcher.Constraint("Equal", 18, 28))
sketch2.addConstraint(Sketcher.Constraint("Equal", 27, 29))
sketch2.addConstraint(Sketcher.Constraint("Equal", 29, 31))
sketch2.addConstraint(Sketcher.Constraint("Equal", 28, 32))
sketch2.addConstraint(Sketcher.Constraint("Equal", 31, 33))
sketch2.addConstraint(Sketcher.Constraint("Equal", 33, 35))
sketch2.addConstraint(Sketcher.Constraint("Equal", 23, 37))
sketch2.addConstraint(Sketcher.Constraint("Equal", 35, 39))
sketch2.addConstraint(Sketcher.Constraint("Symmetric", 5, 3, 21, 3, -1, 1))
sketch2.addConstraint(Sketcher.Constraint("Symmetric", 7, 3, 23, 3, -1, 1))
sketch2.addConstraint(Sketcher.Constraint("Symmetric", 2, 3, 28, 3, -1, 1))
sketch2.addConstraint(Sketcher.Constraint("Symmetric", 17, 3, 31, 3, -1, 1))
sketch2.addConstraint(Sketcher.Constraint("Symmetric", 18, 3, 32, 3, -1, 1))
sketch2.addConstraint(Sketcher.Constraint("Symmetric", 19, 3, 33, 3, -1, 1))
sketch2.addConstraint(Sketcher.Constraint("Symmetric", 13, 2, 37, 2, -1, 1))
sketch2.addConstraint(Sketcher.Constraint("Symmetric", 9, 3, 11, 3, -2))
sketch2.addConstraint(Sketcher.Constraint("Symmetric", 5, 3, 15, 3, -2))
sketch2.addConstraint(Sketcher.Constraint("Symmetric", 2, 3, 18, 3, -2))
sketch2.addConstraint(Sketcher.Constraint("Symmetric", 6, 2, 13, 2, -2))
sketch2.addConstraint(Sketcher.Constraint("Horizontal", 1, 3, 19, 3))
sketch2.addConstraint(Sketcher.Constraint("Horizontal", 27, 3, 33, 3))
sketch2.addConstraint(Sketcher.Constraint("Horizontal", 25, 3, 35, 3))
sketch2.addConstraint(Sketcher.Constraint("Horizontal", 2, 1, 17, 1))
sketch2.addConstraint(Sketcher.Constraint("Horizontal", 28, 1, 31, 1))
sketch2.addConstraint(Sketcher.Constraint("Vertical", 5, 3, 39, 3))
sketch2.addConstraint(Sketcher.Constraint("Vertical", 4, 2, 5, 1))
sketch2.addConstraint(Sketcher.Constraint("Vertical", 37, 3, 6, 2))
sketch2.addConstraint(Sketcher.Constraint("Vertical", 14, 2, 15, 1))
sketch2.addConstraint(Sketcher.Constraint("Vertical", 15, 1, 20, 2))
sketch2.addConstraint(Sketcher.Constraint("Vertical", 13, 2, 22, 2))
sketch2.addConstraint(Sketcher.Constraint("Vertical", 38, 2, 39, 1))
sketch2.addConstraint(Sketcher.Constraint("Equal", 30, 0))
sketch2.addConstraint(Sketcher.Constraint("Equal", 12, 24))
sketch2.addConstraint(Sketcher.Constraint("Radius", 2, 1.0))
sketch2.addConstraint(Sketcher.Constraint("Radius", 7, 2.0))
sketch2.addConstraint(Sketcher.Constraint("DistanceX", 7, 3, -1, 1, 14.0))
sketch2.addConstraint(Sketcher.Constraint("DistanceY", -1, 1, 7, 3, 14.0))
sketch2.addConstraint(Sketcher.Constraint("DistanceX", 2, 3, -1, 1, 17.5))
sketch2.addConstraint(Sketcher.Constraint("DistanceY", -1, 1, 2, 3, 17.5))
sketch2.addConstraint(Sketcher.Constraint("Radius", 1, 0.95407))
sketch2.addConstraint(Sketcher.Constraint("DistanceX", 4, 1, 4, 2, 7.733031))
sketch2.addConstraint(Sketcher.Constraint("DistanceY", 8, 2, 8, 1, 5.566515))
sketch2.addConstraint(Sketcher.Constraint("DistanceX", 5, 3, -1, 1, 8.434331))
sketch2.addConstraint(Sketcher.Constraint("Distance", 6, 5.566518))
pocket1 = body.newObject("PartDesign::Pocket", "Pocket")
pocket1.Profile = sketch2
pocket1.Type = "ThroughAll"
pocket1.Reversed = True

# Sketch on XZ plane
sketch3 = body.newObject("Sketcher::SketchObject", "Sketch002")
sketch3.AttachmentSupport = (doc.getObject("XZ_Plane"), [""])
sketch3.MapMode = "FlatFace"
sketch3.addGeometry(Part.LineSegment(App.Vector(-8.5, 2.5, 0), App.Vector(-9.5, 2.5, 0)), False)
sketch3.addGeometry(Part.ArcOfCircle(Part.Circle(App.Vector(-9.5, 0, 0), App.Vector(0, 0, 1), 2.5), math.radians(90), math.radians(270)), False)
sketch3.addGeometry(Part.LineSegment(App.Vector(-9.5, -2.5, 0), App.Vector(-8.5, -2.5, 0)), False)
sketch3.addGeometry(Part.LineSegment(App.Vector(-8.5, -2.5, 0), App.Vector(-8.5, -8.5, 0)), False)
sketch3.addGeometry(Part.LineSegment(App.Vector(-8.5, -8.5, 0), App.Vector(8.5, -8.5, 0)), False)
sketch3.addGeometry(Part.LineSegment(App.Vector(8.5, -8.5, 0), App.Vector(8.5, -2.5, 0)), False)
sketch3.addGeometry(Part.LineSegment(App.Vector(8.5, -2.5, 0), App.Vector(9.5, -2.5, 0)), False)
sketch3.addGeometry(Part.ArcOfCircle(Part.Circle(App.Vector(9.5, 0, 0), App.Vector(0, 0, 1), 2.5), math.radians(-90), math.radians(90)), False)
sketch3.addGeometry(Part.LineSegment(App.Vector(9.5, 2.5, 0), App.Vector(8.5, 2.5, 0)), False)
sketch3.addGeometry(Part.LineSegment(App.Vector(8.5, 2.5, 0), App.Vector(8.5, 8.5, 0)), False)
sketch3.addGeometry(Part.LineSegment(App.Vector(8.5, 8.5, 0), App.Vector(-8.5, 8.5, 0)), False)
sketch3.addGeometry(Part.LineSegment(App.Vector(-8.5, 8.5, 0), App.Vector(-8.5, 2.5, 0)), False)
sketch3.addConstraint(Sketcher.Constraint("Tangent", 0, 2, 1, 1))
sketch3.addConstraint(Sketcher.Constraint("Tangent", 1, 2, 2, 1))
sketch3.addConstraint(Sketcher.Constraint("Coincident", 2, 2, 3, 1))
sketch3.addConstraint(Sketcher.Constraint("Coincident", 3, 2, 4, 1))
sketch3.addConstraint(Sketcher.Constraint("Coincident", 4, 2, 5, 1))
sketch3.addConstraint(Sketcher.Constraint("Coincident", 5, 2, 6, 1))
sketch3.addConstraint(Sketcher.Constraint("Tangent", 6, 2, 7, 1))
sketch3.addConstraint(Sketcher.Constraint("Tangent", 7, 2, 8, 1))
sketch3.addConstraint(Sketcher.Constraint("Coincident", 8, 2, 9, 1))
sketch3.addConstraint(Sketcher.Constraint("Coincident", 9, 2, 10, 1))
sketch3.addConstraint(Sketcher.Constraint("Coincident", 10, 2, 11, 1))
sketch3.addConstraint(Sketcher.Constraint("Coincident", 11, 2, 0, 1))
sketch3.addConstraint(Sketcher.Constraint("Horizontal", 0))
sketch3.addConstraint(Sketcher.Constraint("Horizontal", 2))
sketch3.addConstraint(Sketcher.Constraint("Vertical", 3))
sketch3.addConstraint(Sketcher.Constraint("Horizontal", 4))
sketch3.addConstraint(Sketcher.Constraint("Vertical", 5))
sketch3.addConstraint(Sketcher.Constraint("Horizontal", 6))
sketch3.addConstraint(Sketcher.Constraint("Horizontal", 8))
sketch3.addConstraint(Sketcher.Constraint("Vertical", 9))
sketch3.addConstraint(Sketcher.Constraint("Horizontal", 10))
sketch3.addConstraint(Sketcher.Constraint("Vertical", 11))
sketch3.addConstraint(Sketcher.Constraint("Equal", 1, 7))
sketch3.addConstraint(Sketcher.Constraint("Symmetric", 1, 3, 7, 3, -1, 1))
sketch3.addConstraint(Sketcher.Constraint("Symmetric", 3, 2, 9, 2, -1, 1))
sketch3.addConstraint(Sketcher.Constraint("Symmetric", 2, 2, 5, 2, -2))
sketch3.addConstraint(Sketcher.Constraint("Vertical", 3, 2, 10, 2))
sketch3.addConstraint(Sketcher.Constraint("Radius", 1, 2.5))
sketch3.addConstraint(Sketcher.Constraint("DistanceX", 0, 2, 0, 1, 1.0))
sketch3.addConstraint(Sketcher.Constraint("DistanceX", 4, 1, 4, 2, 17.0))
sketch3.addConstraint(Sketcher.Constraint("DistanceY", 3, 2, 3, 1, 6.0))
pad2 = body.newObject("PartDesign::Pad", "Pad001")
pad2.Profile = sketch3
pad2.Length = 9

# Sketch on XZ plane
sketch4 = body.newObject("Sketcher::SketchObject", "Sketch003")
sketch4.AttachmentSupport = (doc.getObject("XZ_Plane"), [""])
sketch4.MapMode = "FlatFace"
sketch4.AttachmentOffset = App.Placement(App.Vector(0, 0, 9), App.Rotation())
sketch4.addGeometry(Part.Circle(App.Vector(0, 0, 0), App.Vector(0, 0, 1), 8), False)
sketch4.addConstraint(Sketcher.Constraint("Coincident", 0, 3, -1, 1))
sketch4.addConstraint(Sketcher.Constraint("Diameter", 0, 15.5))
pad3 = body.newObject("PartDesign::Pad", "Pad002")
pad3.Profile = sketch4
pad3.Length = 16.5

doc.recompute()
